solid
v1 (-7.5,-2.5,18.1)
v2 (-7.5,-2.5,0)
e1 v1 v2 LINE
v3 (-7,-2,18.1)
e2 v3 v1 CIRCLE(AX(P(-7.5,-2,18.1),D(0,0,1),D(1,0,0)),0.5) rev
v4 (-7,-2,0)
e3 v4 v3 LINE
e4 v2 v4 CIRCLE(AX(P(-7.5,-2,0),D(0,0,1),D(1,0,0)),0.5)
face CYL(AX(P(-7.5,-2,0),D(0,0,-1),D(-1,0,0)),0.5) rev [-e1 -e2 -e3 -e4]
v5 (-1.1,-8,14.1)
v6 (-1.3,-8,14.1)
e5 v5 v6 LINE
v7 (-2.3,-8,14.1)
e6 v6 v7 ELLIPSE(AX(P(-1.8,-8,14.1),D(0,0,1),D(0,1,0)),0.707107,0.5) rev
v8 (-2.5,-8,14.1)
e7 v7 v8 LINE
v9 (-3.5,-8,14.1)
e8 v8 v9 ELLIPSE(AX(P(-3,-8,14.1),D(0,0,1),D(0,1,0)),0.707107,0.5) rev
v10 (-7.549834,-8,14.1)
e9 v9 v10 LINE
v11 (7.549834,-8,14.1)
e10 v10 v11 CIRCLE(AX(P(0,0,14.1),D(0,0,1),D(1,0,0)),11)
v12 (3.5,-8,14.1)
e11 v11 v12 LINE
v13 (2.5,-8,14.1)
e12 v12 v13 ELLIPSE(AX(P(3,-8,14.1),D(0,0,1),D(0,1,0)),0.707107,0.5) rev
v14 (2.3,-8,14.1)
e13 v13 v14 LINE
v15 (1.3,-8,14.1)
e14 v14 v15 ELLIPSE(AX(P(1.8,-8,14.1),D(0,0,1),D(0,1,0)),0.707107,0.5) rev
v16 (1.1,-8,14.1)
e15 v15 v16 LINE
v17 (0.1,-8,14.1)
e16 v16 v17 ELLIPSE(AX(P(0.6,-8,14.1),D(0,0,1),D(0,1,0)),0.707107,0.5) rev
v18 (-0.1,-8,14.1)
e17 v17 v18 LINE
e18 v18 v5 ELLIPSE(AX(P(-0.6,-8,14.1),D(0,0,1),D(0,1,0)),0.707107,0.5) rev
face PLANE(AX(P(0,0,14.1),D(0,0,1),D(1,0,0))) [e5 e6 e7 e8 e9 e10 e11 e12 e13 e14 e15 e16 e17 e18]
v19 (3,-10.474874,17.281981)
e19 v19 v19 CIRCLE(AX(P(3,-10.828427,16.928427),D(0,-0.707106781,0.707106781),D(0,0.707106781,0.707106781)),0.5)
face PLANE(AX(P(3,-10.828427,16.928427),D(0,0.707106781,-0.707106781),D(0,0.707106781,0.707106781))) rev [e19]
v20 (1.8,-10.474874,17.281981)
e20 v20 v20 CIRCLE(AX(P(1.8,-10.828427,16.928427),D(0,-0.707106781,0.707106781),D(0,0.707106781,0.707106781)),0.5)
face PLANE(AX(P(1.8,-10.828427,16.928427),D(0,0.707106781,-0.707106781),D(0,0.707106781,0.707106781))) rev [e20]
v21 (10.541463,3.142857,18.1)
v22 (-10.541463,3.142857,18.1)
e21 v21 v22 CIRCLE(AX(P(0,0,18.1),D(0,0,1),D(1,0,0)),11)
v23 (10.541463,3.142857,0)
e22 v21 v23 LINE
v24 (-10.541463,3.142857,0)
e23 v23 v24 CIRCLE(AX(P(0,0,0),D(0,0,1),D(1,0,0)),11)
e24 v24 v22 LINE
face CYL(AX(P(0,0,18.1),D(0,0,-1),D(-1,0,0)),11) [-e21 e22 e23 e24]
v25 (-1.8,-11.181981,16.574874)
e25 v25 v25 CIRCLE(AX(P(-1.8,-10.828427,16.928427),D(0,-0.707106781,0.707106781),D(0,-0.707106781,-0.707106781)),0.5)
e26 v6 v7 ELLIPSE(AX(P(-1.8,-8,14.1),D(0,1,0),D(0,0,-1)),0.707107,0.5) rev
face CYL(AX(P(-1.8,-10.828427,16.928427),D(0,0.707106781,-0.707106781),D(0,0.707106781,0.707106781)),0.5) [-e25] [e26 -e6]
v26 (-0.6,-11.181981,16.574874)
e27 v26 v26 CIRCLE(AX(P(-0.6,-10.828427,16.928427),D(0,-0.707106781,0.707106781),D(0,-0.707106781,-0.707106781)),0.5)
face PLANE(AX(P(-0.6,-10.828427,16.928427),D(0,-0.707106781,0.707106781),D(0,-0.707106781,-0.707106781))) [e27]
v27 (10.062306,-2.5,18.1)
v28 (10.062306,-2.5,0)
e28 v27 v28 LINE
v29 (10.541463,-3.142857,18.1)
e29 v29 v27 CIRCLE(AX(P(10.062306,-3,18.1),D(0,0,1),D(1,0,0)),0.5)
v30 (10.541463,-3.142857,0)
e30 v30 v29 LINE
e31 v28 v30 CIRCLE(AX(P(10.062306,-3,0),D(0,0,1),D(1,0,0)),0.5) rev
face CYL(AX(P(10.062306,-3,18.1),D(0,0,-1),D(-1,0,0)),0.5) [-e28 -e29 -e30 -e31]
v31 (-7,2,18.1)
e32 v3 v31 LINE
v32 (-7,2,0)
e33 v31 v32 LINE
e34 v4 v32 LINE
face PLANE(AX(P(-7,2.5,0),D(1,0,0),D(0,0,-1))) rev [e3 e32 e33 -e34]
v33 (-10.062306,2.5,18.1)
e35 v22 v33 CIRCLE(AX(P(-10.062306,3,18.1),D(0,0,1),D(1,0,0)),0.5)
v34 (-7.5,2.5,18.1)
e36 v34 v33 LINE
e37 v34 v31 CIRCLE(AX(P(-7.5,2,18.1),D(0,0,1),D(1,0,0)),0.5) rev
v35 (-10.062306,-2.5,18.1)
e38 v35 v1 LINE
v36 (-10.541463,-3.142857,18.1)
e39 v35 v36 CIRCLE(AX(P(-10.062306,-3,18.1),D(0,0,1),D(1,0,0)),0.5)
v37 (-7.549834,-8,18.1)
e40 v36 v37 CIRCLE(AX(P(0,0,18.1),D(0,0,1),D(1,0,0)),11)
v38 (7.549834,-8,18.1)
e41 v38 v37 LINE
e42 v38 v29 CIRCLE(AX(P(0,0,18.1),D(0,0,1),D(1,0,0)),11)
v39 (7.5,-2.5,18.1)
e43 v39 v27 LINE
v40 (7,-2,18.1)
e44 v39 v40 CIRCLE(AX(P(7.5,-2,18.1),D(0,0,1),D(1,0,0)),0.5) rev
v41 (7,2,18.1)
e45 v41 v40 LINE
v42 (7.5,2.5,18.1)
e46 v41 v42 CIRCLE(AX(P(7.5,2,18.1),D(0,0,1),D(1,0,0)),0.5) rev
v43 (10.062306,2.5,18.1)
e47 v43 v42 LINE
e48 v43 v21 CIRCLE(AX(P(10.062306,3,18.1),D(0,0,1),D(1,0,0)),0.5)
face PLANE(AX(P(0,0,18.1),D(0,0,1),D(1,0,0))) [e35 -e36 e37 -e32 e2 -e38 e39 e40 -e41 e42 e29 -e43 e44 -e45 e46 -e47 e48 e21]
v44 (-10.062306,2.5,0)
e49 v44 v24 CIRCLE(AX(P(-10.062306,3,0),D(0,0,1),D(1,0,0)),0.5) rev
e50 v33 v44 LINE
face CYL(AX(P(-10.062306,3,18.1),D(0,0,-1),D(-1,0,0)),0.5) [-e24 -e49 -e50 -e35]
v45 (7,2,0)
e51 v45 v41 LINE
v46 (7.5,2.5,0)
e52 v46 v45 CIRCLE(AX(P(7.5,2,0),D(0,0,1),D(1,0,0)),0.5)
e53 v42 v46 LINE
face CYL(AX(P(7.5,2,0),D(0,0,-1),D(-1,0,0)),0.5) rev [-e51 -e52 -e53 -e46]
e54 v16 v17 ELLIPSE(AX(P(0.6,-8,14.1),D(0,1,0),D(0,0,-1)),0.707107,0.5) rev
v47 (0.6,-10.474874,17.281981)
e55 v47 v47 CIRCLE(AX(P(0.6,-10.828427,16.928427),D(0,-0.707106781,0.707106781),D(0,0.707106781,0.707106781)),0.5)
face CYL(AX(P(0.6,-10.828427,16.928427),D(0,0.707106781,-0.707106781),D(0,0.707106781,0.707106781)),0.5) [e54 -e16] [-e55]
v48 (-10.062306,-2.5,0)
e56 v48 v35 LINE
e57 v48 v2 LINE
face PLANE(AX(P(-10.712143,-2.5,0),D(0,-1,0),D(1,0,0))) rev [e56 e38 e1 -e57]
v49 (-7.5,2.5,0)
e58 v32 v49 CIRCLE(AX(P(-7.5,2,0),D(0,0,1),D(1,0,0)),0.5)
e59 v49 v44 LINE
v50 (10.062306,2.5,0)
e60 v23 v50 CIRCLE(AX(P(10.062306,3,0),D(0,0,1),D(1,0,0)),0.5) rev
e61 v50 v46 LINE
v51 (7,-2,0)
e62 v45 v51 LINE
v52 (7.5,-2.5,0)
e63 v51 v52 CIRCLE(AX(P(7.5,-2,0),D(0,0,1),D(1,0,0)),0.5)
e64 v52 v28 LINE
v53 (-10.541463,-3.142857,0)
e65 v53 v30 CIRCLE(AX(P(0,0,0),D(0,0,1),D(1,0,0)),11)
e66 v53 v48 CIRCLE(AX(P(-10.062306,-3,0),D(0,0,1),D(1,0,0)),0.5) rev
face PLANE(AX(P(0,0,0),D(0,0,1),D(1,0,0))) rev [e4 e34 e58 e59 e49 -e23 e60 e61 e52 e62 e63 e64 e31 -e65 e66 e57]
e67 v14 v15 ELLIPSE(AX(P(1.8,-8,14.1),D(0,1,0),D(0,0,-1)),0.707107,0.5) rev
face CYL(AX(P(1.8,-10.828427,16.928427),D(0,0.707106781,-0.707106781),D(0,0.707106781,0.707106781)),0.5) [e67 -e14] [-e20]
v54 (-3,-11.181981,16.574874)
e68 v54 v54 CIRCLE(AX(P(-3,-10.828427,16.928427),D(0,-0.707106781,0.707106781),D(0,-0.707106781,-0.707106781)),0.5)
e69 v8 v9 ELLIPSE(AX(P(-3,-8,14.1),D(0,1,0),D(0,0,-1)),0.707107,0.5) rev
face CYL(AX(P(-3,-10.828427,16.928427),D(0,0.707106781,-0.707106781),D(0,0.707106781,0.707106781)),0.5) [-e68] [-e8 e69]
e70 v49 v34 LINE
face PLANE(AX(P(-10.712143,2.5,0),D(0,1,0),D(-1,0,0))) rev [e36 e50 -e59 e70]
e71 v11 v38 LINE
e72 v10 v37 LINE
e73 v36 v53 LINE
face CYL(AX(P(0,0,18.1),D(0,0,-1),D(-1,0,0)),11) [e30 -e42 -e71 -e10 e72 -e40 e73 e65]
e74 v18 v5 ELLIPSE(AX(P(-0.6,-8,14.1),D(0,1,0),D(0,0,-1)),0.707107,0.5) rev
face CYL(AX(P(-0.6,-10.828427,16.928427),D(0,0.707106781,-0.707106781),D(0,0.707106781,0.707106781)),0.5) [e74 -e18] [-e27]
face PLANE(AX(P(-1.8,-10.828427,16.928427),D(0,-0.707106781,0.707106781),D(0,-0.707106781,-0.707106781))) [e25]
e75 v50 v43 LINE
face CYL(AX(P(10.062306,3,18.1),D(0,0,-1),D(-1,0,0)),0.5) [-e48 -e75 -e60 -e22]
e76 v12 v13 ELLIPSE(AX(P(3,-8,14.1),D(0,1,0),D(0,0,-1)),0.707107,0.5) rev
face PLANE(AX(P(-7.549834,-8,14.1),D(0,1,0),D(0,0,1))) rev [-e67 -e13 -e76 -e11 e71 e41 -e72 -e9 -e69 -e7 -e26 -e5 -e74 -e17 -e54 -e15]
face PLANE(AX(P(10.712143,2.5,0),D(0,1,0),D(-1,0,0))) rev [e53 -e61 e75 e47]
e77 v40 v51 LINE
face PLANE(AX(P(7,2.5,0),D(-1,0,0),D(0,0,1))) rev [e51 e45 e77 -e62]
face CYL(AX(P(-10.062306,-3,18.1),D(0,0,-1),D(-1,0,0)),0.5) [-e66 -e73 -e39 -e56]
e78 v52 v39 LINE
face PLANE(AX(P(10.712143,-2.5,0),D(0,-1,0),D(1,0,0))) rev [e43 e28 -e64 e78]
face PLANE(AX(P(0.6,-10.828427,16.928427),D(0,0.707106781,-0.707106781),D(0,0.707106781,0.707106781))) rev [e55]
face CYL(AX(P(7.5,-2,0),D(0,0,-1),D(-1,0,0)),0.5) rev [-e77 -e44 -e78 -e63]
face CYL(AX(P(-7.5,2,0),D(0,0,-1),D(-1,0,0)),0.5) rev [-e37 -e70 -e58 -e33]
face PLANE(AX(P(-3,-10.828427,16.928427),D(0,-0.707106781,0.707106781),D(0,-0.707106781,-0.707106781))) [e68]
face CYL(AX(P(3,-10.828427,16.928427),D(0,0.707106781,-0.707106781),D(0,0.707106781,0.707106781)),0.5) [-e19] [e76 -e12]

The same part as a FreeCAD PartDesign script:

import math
import FreeCAD as App
import Part
import Sketcher
from FreeCAD import Vector
Q = App.Units.Quantity


def edges_at(feature, points):
    """Names of the edges that pass closest to the given points."""
    edges = feature.Shape.Edges
    near = lambda p: min(range(len(edges)), key=lambda i: edges[i].distToShape(Part.Vertex(*p))[0])
    return sorted({f"Edge{near(p) + 1}" for p in points})

doc = App.newDocument("Part")
params = doc.addObject("Spreadsheet::Sheet", "Params")
for row, (alias, value) in enumerate([
    ("sketch1_diameter", "22 mm"),
    ("pad1_length", "18.1 mm"),
    ("sketch2_radius", "11 mm"),
    ("sketch2_height", "5 mm"),
    ("sketch3_radius", "11 mm"),
    ("pocket2_length", "4 mm"),
    ("fillet_radius", "0.5 mm"),
    ("sketch4_diameter", "1 mm"),
    ("pad2_length", "4 mm"),
], start=1):
    params.set(f"A{row}", alias)
    params.set(f"B{row}", "=" + value)
    params.setAlias(f"B{row}", alias)

body = doc.addObject("PartDesign::Body", "Body")

# Sketch on XY plane
sketch1 = body.newObject("Sketcher::SketchObject", "Sketch")
sketch1.AttachmentSupport = (doc.getObject("XY_Plane"), [""])
sketch1.MapMode = "FlatFace"
sketch1.addGeometry(Part.Circle(Vector(0, 0, 0), Vector(0, 0, 1), 11), False)
sketch1.addConstraint([
    Sketcher.Constraint("Coincident", 0, 3, -1, 1),
    Sketcher.Constraint("Diameter", 0, Q("22 mm")),
])
sketch1.setExpression("Constraints[1]", "Params.sketch1_diameter")
pad1 = body.newObject("PartDesign::Pad", "Pad")
pad1.Profile = sketch1
pad1.setExpression("Length", "Params.pad1_length")

# Sketch on XY plane
sketch2 = body.newObject("Sketcher::SketchObject", "Sketch001")
sketch2.AttachmentSupport = (doc.getObject("XY_Plane"), [""])
sketch2.MapMode = "FlatFace"
sketch2.AttachmentOffset = App.Placement(Vector(0, 0, 18.1), App.Rotation())
sketch2.addGeometry([
    Part.LineSegment(Vector(10.712143, 2.5, 0), Vector(7, 2.5, 0)),  # 0
    Part.LineSegment(Vector(7, 2.5, 0), Vector(7, -2.5, 0)),  # 1
    Part.LineSegment(Vector(7, -2.5, 0), Vector(10.712143, -2.5, 0)),  # 2
    Part.ArcOfCircle(Part.Circle(Vector(0, 0, 0), Vector(0, 0, 1), 11), math.radians(-13.136559), math.radians(13.136559)),  # 3
    Part.LineSegment(Vector(-10.712143, -2.5, 0), Vector(-7, -2.5, 0)),  # 4
    Part.LineSegment(Vector(-7, -2.5, 0), Vector(-7, 2.5, 0)),  # 5
    Part.LineSegment(Vector(-7, 2.5, 0), Vector(-10.712143, 2.5, 0)),  # 6
    Part.ArcOfCircle(Part.Circle(Vector(0, 0, 0), Vector(0, 0, 1), 11), math.radians(166.863441), math.radians(193.136559)),  # 7
], False)
sketch2.addConstraint([
    Sketcher.Constraint("Coincident", 0, 2, 1, 1),
    Sketcher.Constraint("Coincident", 1, 2, 2, 1),
    Sketcher.Constraint("Coincident", 2, 2, 3, 1),
    Sketcher.Constraint("Coincident", 3, 2, 0, 1),
    Sketcher.Constraint("Coincident", 4, 2, 5, 1),
    Sketcher.Constraint("Coincident", 5, 2, 6, 1),
    Sketcher.Constraint("Coincident", 6, 2, 7, 1),
    Sketcher.Constraint("Coincident", 7, 2, 4, 1),
    Sketcher.Constraint("Horizontal", 0),
    Sketcher.Constraint("Vertical", 1),
    Sketcher.Constraint("Horizontal", 2),
    Sketcher.Constraint("Horizontal", 4),
    Sketcher.Constraint("Vertical", 5),
    Sketcher.Constraint("Horizontal", 6),
    Sketcher.Constraint("Coincident", 3, 3, -1, 1),
    Sketcher.Constraint("Coincident", 7, 3, -1, 1),
    Sketcher.Constraint("Equal", 3, 7),
    Sketcher.Constraint("Symmetric", 0, 2, 4, 2, -1, 1),
    Sketcher.Constraint("Horizontal", 2, 2, 4, 2),
    Sketcher.Constraint("Horizontal", 3, 2, 5, 2),
    Sketcher.Constraint("Radius", 3, Q("11 mm")),
    Sketcher.Constraint("DistanceY", 1, 2, 1, 1, Q("5 mm")),
    Sketcher.Constraint("DistanceX", -1, 1, 0, 2, Q("7 mm")),
])
sketch2.setExpression("Constraints[20]", "Params.sketch2_radius")
sketch2.setExpression("Constraints[21]", "Params.sketch2_height")
pocket1 = body.newObject("PartDesign::Pocket", "Pocket")
pocket1.Profile = sketch2
pocket1.Type = "ThroughAll"

# Sketch on XY plane
sketch3 = body.newObject("Sketcher::SketchObject", "Sketch002")
sketch3.AttachmentSupport = (doc.getObject("XY_Plane"), [""])
sketch3.MapMode = "FlatFace"
sketch3.AttachmentOffset = App.Placement(Vector(0, 0, 14.1), App.Rotation())
sketch3.addGeometry([
    Part.LineSegment(Vector(7.549834, -8, 0), Vector(-7.549834, -8, 0)),
    Part.ArcOfCircle(Part.Circle(Vector(0, 0, 0), Vector(0, 0, 1), 11), math.radians(-133.341758), math.radians(-46.658242)),
], False)
sketch3.addConstraint([
    Sketcher.Constraint("Coincident", 0, 1, 1, 2),
    Sketcher.Constraint("Coincident", 1, 1, 0, 2),
    Sketcher.Constraint("Horizontal", 0),
    Sketcher.Constraint("Coincident", 1, 3, -1, 1),
    Sketcher.Constraint("Radius", 1, Q("11 mm")),
    Sketcher.Constraint("DistanceY", 0, 1, -1, 1, Q("8 mm")),
])
sketch3.setExpression("Constraints[4]", "Params.sketch3_radius")
pocket2 = body.newObject("PartDesign::Pocket", "Pocket001")
pocket2.Profile = sketch3
pocket2.setExpression("Length", "Params.pocket2_length")
pocket2.Reversed = True
doc.recompute()

fillet = body.newObject("PartDesign::Fillet", "Fillet")
fillet.Base = (pocket2, edges_at(pocket2, [
    (10.712, 2.5, 9.05),
    (10.712, -2.5, 9.05),
    (7, -2.5, 9.05),
    (7, 2.5, 9.05),
    (-10.712, -2.5, 9.05),
    (-10.712, 2.5, 9.05),
    (-7, 2.5, 9.05),
    (-7, -2.5, 9.05),
]))
fillet.setExpression("Radius", "Params.fillet_radius")

# Sketch on an angled plane
sketch4 = body.newObject("Sketcher::SketchObject", "Sketch003")
sketch4.Placement = App.Placement(Vector(0, -11.05, 11.05), App.Rotation(Vector(-1, 0, 0), Vector(0, -0.707106781, -0.707106781), Vector(0, -0.707106781, 0.707106781), "ZXY"))
sketch4.addGeometry([
    Part.Circle(Vector(0.6, -4.313351, 0), Vector(0, 0, 1), 0.5),  # 0
    Part.Circle(Vector(1.8, -4.313351, 0), Vector(0, 0, 1), 0.5),  # 1
    Part.Circle(Vector(3, -4.313351, 0), Vector(0, 0, 1), 0.5),  # 2
    Part.Circle(Vector(-3, -4.313351, 0), Vector(0, 0, 1), 0.5),  # 3
    Part.Circle(Vector(-1.8, -4.313351, 0), Vector(0, 0, 1), 0.5),  # 4
    Part.Circle(Vector(-0.6, -4.313351, 0), Vector(0, 0, 1), 0.5),  # 5
], False)
sketch4.addConstraint([
    Sketcher.Constraint("Equal", 0, 1),
    Sketcher.Constraint("Equal", 1, 2),
    Sketcher.Constraint("Equal", 2, 3),
    Sketcher.Constraint("Equal", 3, 4),
    Sketcher.Constraint("Equal", 4, 5),
    Sketcher.Constraint("Symmetric", 2, 3, 3, 3, -2),
    Sketcher.Constraint("Symmetric", 1, 3, 4, 3, -2),
    Sketcher.Constraint("Symmetric", 0, 3, 5, 3, -2),
    Sketcher.Constraint("Horizontal", 0, 3, 1, 3),
    Sketcher.Constraint("Horizontal", 1, 3, 2, 3),
    Sketcher.Constraint("Diameter", 0, Q("1 mm")),
    Sketcher.Constraint("DistanceX", -1, 1, 2, 3, Q("3 mm")),
    Sketcher.Constraint("DistanceX", -1, 1, 0, 3, Q("0.6 mm")),
    Sketcher.Constraint("DistanceX", -1, 1, 1, 3, Q("1.8 mm")),
    Sketcher.Constraint("DistanceY", 0, 3, -1, 1, Q("4.313351 mm")),
])
sketch4.setExpression("Constraints[10]", "Params.sketch4_diameter")
pad2 = body.newObject("PartDesign::Pad", "Pad001")
pad2.Profile = sketch4
pad2.setExpression("Length", "Params.pad2_length")

doc.recompute()
